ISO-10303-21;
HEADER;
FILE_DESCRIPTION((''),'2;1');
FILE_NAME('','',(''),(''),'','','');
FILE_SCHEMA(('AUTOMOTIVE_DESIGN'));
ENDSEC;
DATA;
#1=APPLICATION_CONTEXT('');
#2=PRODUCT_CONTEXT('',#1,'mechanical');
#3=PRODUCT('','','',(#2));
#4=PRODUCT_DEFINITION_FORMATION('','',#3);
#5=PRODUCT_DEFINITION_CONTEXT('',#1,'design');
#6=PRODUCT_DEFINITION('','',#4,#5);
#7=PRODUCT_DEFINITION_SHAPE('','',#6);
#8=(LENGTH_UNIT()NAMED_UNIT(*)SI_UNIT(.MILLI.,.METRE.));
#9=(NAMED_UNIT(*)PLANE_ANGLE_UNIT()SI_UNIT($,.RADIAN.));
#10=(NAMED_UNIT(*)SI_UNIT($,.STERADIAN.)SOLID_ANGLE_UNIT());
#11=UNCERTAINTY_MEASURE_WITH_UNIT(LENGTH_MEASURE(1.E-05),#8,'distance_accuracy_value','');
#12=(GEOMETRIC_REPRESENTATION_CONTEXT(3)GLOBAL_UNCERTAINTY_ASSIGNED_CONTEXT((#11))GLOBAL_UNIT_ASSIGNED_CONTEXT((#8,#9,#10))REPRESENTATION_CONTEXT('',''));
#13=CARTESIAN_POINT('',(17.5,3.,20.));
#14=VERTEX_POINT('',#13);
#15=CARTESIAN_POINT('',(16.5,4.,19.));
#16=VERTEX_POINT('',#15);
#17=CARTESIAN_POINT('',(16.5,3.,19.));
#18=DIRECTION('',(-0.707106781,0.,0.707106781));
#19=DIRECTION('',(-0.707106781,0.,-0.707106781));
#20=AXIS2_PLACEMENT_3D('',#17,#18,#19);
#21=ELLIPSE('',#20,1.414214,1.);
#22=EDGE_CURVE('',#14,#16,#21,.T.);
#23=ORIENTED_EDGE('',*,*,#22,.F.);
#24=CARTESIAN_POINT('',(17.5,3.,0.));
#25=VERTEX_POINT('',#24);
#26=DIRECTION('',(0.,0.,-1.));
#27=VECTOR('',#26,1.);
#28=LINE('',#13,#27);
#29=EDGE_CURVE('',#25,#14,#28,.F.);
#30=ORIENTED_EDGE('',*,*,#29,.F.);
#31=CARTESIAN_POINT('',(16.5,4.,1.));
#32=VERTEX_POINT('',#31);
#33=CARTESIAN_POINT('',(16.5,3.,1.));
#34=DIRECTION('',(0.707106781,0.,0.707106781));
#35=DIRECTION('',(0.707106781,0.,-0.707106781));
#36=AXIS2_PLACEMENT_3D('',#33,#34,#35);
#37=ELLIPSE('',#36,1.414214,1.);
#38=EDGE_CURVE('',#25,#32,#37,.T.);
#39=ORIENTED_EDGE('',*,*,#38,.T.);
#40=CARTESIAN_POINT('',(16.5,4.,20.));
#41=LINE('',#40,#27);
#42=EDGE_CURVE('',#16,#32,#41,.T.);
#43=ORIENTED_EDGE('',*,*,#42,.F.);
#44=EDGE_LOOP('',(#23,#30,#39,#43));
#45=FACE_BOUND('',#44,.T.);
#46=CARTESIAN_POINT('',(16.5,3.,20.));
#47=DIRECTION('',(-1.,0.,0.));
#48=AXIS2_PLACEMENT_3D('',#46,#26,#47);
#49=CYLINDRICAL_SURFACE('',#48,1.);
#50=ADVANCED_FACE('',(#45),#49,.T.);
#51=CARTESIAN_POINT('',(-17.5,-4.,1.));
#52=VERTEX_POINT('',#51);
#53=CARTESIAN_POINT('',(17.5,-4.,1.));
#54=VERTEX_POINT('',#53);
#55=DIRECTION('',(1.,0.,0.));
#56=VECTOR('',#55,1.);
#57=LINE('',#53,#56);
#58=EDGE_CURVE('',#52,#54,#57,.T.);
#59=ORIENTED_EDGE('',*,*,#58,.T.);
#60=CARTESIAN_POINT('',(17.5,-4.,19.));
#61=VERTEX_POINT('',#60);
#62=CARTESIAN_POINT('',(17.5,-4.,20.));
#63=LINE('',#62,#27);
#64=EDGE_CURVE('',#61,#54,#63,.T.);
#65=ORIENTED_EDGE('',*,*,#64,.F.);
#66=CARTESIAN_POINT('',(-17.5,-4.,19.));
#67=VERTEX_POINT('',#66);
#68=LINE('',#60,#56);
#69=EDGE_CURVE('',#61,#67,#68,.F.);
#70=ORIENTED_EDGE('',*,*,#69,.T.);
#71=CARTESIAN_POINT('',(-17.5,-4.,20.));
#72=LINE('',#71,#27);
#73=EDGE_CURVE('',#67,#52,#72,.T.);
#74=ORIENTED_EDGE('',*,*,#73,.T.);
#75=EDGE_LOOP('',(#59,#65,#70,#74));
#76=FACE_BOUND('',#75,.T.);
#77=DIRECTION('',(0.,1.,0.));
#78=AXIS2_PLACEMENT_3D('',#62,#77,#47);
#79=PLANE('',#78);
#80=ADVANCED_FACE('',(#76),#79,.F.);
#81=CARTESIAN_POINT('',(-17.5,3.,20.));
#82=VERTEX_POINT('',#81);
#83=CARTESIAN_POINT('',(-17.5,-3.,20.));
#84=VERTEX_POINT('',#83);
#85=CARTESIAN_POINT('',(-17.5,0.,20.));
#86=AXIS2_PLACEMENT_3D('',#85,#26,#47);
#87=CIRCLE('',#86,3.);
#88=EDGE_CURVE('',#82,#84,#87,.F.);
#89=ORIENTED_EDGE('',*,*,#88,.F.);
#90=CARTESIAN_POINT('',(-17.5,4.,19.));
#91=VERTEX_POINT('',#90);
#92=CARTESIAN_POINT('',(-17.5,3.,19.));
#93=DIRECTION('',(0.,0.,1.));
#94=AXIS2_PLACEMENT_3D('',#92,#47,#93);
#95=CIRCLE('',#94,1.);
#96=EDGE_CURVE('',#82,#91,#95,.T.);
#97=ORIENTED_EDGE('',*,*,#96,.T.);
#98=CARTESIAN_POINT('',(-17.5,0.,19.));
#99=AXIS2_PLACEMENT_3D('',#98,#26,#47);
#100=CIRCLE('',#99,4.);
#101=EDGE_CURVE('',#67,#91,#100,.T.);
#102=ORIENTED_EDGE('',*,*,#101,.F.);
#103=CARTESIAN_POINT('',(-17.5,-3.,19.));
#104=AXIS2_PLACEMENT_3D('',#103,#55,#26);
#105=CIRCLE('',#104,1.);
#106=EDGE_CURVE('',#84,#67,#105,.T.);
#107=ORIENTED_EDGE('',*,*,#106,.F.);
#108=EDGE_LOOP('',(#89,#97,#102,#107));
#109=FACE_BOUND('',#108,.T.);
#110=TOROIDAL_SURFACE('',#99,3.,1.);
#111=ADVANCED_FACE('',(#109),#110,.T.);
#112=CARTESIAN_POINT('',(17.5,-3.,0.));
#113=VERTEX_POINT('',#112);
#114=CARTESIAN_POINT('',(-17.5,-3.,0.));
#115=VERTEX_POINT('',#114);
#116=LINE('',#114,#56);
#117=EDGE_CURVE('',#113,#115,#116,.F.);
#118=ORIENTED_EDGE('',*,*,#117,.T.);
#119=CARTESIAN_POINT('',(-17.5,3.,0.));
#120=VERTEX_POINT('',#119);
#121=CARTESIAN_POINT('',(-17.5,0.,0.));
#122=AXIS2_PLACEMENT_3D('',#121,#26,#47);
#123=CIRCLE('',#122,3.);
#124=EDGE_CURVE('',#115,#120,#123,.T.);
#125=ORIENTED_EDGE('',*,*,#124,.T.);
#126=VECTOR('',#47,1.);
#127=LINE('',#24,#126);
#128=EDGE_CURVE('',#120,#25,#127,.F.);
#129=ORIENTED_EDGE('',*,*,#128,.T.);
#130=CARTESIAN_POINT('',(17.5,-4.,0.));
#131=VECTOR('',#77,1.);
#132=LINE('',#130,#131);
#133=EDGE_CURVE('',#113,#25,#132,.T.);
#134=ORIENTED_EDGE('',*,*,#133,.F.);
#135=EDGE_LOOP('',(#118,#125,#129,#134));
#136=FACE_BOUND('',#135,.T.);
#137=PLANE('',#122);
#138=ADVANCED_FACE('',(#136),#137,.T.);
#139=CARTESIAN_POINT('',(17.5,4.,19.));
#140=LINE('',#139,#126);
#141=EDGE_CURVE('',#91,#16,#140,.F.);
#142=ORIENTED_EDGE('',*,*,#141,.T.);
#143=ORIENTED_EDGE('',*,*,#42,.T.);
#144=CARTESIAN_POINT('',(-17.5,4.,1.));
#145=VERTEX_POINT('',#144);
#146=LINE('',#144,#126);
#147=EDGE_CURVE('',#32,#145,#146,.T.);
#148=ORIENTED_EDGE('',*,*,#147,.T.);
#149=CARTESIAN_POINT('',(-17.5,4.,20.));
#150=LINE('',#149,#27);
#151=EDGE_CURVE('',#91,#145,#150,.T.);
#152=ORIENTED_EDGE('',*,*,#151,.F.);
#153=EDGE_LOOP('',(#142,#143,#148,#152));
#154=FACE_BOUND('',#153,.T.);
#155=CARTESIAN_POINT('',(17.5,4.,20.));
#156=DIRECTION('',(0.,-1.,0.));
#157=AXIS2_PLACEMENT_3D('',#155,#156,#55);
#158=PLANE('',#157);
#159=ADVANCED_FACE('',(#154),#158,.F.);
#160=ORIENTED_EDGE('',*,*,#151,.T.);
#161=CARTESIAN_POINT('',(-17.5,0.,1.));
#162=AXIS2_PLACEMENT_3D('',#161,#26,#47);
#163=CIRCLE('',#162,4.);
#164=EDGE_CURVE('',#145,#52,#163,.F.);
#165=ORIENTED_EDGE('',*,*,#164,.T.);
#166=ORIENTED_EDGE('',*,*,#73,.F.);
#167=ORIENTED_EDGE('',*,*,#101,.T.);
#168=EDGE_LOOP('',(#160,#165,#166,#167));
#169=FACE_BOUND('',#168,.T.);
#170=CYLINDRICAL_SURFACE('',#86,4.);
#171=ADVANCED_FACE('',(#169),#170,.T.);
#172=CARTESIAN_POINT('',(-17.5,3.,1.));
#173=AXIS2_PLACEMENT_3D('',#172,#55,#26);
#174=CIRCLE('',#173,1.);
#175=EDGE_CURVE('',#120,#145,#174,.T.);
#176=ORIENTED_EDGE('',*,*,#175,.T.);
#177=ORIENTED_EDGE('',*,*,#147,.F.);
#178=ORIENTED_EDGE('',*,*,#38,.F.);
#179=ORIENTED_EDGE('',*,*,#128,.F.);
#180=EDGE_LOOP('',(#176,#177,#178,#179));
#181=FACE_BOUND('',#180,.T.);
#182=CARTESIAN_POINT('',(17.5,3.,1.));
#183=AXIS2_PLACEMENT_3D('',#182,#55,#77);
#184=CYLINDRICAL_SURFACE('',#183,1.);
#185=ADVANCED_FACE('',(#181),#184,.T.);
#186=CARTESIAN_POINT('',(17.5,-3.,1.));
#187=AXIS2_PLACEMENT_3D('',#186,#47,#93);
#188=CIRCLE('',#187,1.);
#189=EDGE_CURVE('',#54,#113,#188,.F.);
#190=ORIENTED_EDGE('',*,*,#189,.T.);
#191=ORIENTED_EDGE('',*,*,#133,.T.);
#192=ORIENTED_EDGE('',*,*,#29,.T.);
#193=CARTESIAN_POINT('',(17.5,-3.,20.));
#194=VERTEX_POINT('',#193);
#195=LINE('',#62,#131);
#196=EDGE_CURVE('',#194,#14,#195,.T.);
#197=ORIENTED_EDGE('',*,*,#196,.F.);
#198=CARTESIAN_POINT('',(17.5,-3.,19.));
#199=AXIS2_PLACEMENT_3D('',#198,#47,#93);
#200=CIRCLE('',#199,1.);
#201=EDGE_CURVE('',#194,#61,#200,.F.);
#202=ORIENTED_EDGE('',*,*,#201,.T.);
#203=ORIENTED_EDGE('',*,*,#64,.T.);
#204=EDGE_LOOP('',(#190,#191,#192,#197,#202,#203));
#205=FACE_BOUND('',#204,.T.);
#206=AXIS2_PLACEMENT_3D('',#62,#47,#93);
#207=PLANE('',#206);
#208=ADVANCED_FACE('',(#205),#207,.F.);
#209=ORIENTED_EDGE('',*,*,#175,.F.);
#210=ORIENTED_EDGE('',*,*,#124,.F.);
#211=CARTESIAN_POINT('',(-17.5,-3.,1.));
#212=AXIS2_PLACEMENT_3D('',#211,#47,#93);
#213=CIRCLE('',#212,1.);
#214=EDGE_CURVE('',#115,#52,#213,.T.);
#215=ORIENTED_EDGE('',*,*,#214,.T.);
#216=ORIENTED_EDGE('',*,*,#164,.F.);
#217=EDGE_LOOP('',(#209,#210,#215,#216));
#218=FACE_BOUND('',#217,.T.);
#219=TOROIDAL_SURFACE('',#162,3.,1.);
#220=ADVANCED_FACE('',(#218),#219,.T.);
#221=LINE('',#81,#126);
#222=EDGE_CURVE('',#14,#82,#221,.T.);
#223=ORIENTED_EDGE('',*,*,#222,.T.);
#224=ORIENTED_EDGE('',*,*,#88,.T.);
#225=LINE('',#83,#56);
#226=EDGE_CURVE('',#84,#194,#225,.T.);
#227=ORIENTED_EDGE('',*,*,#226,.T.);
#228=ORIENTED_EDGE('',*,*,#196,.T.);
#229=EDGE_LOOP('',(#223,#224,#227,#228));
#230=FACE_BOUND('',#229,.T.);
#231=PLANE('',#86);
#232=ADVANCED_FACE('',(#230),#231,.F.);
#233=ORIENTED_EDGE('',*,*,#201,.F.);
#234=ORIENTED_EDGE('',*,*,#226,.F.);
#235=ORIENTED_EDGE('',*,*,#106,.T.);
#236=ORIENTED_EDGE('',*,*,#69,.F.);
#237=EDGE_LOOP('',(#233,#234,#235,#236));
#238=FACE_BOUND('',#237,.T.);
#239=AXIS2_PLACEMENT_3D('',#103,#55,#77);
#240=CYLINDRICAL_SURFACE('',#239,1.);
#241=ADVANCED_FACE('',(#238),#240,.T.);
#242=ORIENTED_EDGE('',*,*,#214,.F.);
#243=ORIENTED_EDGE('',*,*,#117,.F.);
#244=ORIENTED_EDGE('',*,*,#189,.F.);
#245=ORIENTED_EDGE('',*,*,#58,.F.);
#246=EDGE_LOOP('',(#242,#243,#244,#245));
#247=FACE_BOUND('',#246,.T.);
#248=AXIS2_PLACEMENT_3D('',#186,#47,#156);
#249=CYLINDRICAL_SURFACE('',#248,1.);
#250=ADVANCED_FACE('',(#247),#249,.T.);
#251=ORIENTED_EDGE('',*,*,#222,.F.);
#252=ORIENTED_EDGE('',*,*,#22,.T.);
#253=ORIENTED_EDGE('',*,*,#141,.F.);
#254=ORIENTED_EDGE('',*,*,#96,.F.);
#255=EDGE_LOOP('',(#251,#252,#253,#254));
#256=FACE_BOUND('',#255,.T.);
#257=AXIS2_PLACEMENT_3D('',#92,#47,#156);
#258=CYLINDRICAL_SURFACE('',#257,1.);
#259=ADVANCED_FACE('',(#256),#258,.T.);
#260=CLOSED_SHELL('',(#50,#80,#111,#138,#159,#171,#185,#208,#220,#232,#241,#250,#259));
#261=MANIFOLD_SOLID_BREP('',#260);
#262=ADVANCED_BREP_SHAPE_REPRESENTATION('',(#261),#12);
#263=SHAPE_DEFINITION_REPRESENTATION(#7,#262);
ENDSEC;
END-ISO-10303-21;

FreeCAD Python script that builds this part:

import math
import FreeCAD as App
import Part
import Sketcher

V = App.Vector
Q = App.Units.Quantity


def edges_at(feature, points):
    """Names of the edges that pass closest to the given points."""
    edges = feature.Shape.Edges
    near = lambda p: min(range(len(edges)), key=lambda i: edges[i].distToShape(Part.Vertex(*p))[0])
    return sorted({f"Edge{near(p) + 1}" for p in points})

doc = App.newDocument("Part")
body = doc.addObject("PartDesign::Body", "Body")

sketch1 = body.newObject("Sketcher::SketchObject", "Sketch")
sketch1.AttachmentSupport = (doc.getObject("XY_Plane"), [""])
sketch1.MapMode = "FlatFace"
sketch1.addGeometry(Part.LineSegment(V(-17.5, -4, 0), V(17.5, -4, 0)), False)
sketch1.addGeometry(Part.LineSegment(V(17.5, -4, 0), V(17.5, 4, 0)), False)
sketch1.addGeometry(Part.LineSegment(V(17.5, 4, 0), V(-17.5, 4, 0)), False)
sketch1.addGeometry(Part.ArcOfCircle(Part.Circle(V(-17.5, 0, 0), V(0, 0, 1), 4), math.radians(90), math.radians(270)), False)
sketch1.addConstraint(Sketcher.Constraint("Coincident", 0, 2, 1, 1))
sketch1.addConstraint(Sketcher.Constraint("Coincident", 1, 2, 2, 1))
sketch1.addConstraint(Sketcher.Constraint("Tangent", 2, 2, 3, 1))
sketch1.addConstraint(Sketcher.Constraint("Tangent", 3, 2, 0, 1))
sketch1.addConstraint(Sketcher.Constraint("Horizontal", 0))
sketch1.addConstraint(Sketcher.Constraint("Vertical", 1))
sketch1.addConstraint(Sketcher.Constraint("Horizontal", 2))
sketch1.addConstraint(Sketcher.Constraint("Symmetric", 0, 2, 2, 2, -1, 1))
sketch1.addConstraint(Sketcher.Constraint("Radius", 3, Q("4 mm")))
sketch1.addConstraint(Sketcher.Constraint("DistanceX", 0, 1, 0, 2, Q("35 mm")))
pad1 = body.newObject("PartDesign::Pad", "Pad")
pad1.Profile = sketch1
pad1.Length = 20
doc.recompute()

fillet = body.newObject("PartDesign::Fillet", "Fillet")
fillet.Base = (pad1, edges_at(pad1, [
    (0, 4, 20),
    (-21.5, 0, 20),
    (0, 4, 0),
    (0, -4, 0),
    (-21.5, 0, 0),
    (17.5, 4, 10),
    (0, -4, 20),
]))
fillet.Radius = 1

doc.recompute()
